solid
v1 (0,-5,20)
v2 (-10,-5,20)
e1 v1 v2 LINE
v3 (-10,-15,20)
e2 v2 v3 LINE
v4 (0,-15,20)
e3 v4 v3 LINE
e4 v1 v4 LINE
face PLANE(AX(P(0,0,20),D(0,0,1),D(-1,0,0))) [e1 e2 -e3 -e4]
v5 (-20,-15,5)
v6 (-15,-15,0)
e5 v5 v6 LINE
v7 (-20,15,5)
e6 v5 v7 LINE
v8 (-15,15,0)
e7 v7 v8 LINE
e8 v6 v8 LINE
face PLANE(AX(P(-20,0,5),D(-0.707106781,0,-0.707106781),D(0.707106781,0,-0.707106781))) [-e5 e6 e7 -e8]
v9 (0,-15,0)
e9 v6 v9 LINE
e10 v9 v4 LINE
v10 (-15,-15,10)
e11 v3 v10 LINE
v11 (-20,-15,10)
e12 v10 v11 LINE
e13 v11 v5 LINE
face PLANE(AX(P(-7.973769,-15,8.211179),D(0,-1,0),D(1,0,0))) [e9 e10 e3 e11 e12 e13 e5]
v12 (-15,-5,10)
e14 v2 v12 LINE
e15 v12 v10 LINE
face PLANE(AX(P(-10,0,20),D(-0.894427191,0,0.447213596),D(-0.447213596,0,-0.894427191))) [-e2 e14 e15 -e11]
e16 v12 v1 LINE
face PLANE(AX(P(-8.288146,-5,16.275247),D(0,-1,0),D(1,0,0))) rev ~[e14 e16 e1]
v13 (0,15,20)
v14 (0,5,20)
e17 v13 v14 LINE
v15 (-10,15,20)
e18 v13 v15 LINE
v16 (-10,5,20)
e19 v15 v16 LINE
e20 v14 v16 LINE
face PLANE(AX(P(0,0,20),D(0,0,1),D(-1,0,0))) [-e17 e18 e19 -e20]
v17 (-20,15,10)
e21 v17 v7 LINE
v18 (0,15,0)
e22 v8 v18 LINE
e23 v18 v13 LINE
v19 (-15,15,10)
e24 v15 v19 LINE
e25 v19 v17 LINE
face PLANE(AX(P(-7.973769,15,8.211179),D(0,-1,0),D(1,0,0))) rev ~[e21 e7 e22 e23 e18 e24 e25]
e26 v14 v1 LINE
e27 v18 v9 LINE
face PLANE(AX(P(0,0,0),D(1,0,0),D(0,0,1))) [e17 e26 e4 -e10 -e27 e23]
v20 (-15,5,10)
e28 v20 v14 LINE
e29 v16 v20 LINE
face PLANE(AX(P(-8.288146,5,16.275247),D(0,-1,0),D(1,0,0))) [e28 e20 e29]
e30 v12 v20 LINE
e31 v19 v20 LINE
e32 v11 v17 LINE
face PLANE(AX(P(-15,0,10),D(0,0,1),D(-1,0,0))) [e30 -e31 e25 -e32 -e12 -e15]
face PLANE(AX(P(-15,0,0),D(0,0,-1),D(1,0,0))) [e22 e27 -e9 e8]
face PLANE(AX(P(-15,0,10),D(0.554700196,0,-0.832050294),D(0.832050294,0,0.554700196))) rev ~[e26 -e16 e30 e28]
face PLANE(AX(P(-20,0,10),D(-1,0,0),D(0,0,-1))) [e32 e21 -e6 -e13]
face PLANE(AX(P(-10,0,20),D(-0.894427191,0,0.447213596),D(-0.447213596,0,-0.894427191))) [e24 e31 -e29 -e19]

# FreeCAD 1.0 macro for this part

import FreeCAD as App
import Part
import Sketcher

V = App.Vector
Q = App.Units.Quantity

doc = App.newDocument("Part")
body = doc.addObject("PartDesign::Body", "Body")

sketch1 = body.newObject("Sketcher::SketchObject", "Sketch")
sketch1.AttachmentSupport = (doc.getObject("XZ_Plane"), [""])
sketch1.MapMode = "FlatFace"
sketch1.addGeometry([
    Part.LineSegment(V(-15, 0, 0), V(0, 0, 0)),
    Part.LineSegment(V(0, 0, 0), V(0, 20, 0)),
    Part.LineSegment(V(0, 20, 0), V(-10, 20, 0)),
    Part.LineSegment(V(-10, 20, 0), V(-15, 10, 0)),
    Part.LineSegment(V(-15, 10, 0), V(-20, 10, 0)),
    Part.LineSegment(V(-20, 10, 0), V(-20, 5, 0)),
    Part.LineSegment(V(-20, 5, 0), V(-15, 0, 0)),
], False)
sketch1.addConstraint([
    Sketcher.Constraint("Coincident", 0, 2, 1, 1),
    Sketcher.Constraint("Coincident", 1, 2, 2, 1),
    Sketcher.Constraint("Coincident", 2, 2, 3, 1),
    Sketcher.Constraint("Coincident", 3, 2, 4, 1),
    Sketcher.Constraint("Coincident", 4, 2, 5, 1),
    Sketcher.Constraint("Coincident", 5, 2, 6, 1),
    Sketcher.Constraint("Coincident", 6, 2, 0, 1),
    Sketcher.Constraint("Horizontal", 0),
    Sketcher.Constraint("Vertical", 1),
    Sketcher.Constraint("Horizontal", 2),
    Sketcher.Constraint("Horizontal", 4),
    Sketcher.Constraint("Vertical", 5),
    Sketcher.Constraint("Coincident", 0, 2, -1, 1),
    Sketcher.Constraint("Vertical", 3, 2, 6, 2),
    Sketcher.Constraint("Equal", 4, 5),
    Sketcher.Constraint("DistanceX", 0, 1, 0, 2, 15.0),
    Sketcher.Constraint("DistanceX", 2, 2, 2, 1, 10.0),
    Sketcher.Constraint("DistanceX", 4, 2, 4, 1, 5.0),
    Sketcher.Constraint("DistanceY", 1, 1, 1, 2, 20.0),
    Sketcher.Constraint("Angle", 6, Q("-45 deg")),
])
pad1 = body.newObject("PartDesign::Pad", "Pad")
pad1.Profile = sketch1
pad1.Length = 30
pad1.Midplane = True

sketch2 = body.newObject("Sketcher::SketchObject", "Sketch001")
sketch2.AttachmentSupport = (doc.getObject("XZ_Plane"), [""])
sketch2.MapMode = "FlatFace"
sketch2.addGeometry([
    Part.LineSegment(V(-15, 10, 0), V(0, 20, 0)),
    Part.LineSegment(V(0, 20, 0), V(-10, 20, 0)),
    Part.LineSegment(V(-10, 20, 0), V(-15, 10, 0)),
], False)
sketch2.addConstraint([
    Sketcher.Constraint("Coincident", 0, 2, 1, 1),
    Sketcher.Constraint("Coincident", 1, 2, 2, 1),
    Sketcher.Constraint("Coincident", 2, 2, 0, 1),
    Sketcher.Constraint("Horizontal", 1),
    Sketcher.Constraint("PointOnObject", 0, 2, -2),
    Sketcher.Constraint("DistanceX", 1, 2, 1, 1, 10.0),
    Sketcher.Constraint("DistanceY", -1, 1, 0, 2, 20.0),
    Sketcher.Constraint("DistanceX", 2, 2, -1, 1, 15.0),
    Sketcher.Constraint("DistanceY", -1, 1, 2, 2, 10.0),
])
pocket1 = body.newObject("PartDesign::Pocket", "Pocket")
pocket1.Profile = sketch2
pocket1.Length = 10
pocket1.Midplane = True

doc.recompute()
